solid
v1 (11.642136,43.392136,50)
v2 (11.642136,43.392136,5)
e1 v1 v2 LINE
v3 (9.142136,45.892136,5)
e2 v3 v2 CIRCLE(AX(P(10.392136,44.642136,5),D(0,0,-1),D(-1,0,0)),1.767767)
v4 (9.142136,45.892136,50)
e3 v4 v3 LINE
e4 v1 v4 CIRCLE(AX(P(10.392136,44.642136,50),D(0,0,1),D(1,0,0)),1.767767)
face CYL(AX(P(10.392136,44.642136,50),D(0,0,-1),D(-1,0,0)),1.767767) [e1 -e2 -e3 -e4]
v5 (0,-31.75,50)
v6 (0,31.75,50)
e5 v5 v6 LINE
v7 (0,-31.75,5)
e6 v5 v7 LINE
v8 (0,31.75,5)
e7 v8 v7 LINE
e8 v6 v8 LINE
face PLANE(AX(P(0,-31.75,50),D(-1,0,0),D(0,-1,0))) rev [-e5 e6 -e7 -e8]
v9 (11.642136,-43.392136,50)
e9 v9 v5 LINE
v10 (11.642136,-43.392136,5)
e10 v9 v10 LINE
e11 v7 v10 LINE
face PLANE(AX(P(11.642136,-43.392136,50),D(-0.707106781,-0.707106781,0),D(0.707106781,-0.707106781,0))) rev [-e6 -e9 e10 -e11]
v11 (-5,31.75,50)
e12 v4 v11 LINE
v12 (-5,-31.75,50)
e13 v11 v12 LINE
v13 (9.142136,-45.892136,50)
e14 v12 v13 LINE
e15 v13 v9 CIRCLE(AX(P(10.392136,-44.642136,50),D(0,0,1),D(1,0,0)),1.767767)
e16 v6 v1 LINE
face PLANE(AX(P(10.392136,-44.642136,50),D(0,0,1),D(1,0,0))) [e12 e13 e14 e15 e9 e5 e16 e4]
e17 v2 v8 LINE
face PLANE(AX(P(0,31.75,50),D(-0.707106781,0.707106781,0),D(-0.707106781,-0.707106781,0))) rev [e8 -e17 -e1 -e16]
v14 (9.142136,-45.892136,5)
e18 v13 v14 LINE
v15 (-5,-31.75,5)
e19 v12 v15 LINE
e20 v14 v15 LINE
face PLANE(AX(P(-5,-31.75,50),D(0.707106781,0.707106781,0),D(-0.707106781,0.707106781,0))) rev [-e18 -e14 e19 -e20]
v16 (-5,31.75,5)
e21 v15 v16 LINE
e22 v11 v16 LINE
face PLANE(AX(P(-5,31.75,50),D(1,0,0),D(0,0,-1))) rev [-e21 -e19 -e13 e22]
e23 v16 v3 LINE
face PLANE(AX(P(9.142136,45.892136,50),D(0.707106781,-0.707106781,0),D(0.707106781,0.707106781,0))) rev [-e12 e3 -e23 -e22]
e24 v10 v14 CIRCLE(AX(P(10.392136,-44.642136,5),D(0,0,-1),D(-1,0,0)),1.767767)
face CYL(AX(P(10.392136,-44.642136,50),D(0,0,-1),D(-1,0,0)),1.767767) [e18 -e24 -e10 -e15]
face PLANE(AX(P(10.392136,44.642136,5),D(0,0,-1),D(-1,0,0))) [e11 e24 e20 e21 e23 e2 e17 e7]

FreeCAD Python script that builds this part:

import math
import FreeCAD as App
import Part
import Sketcher

V = App.Vector
Q = App.Units.Quantity

doc = App.newDocument("Part")
body = doc.addObject("PartDesign::Body", "Body")

# Sketch on XY plane
sketch1 = body.newObject("Sketcher::SketchObject", "Sketch")
sketch1.AttachmentSupport = (doc.getObject("XY_Plane"), [""])
sketch1.MapMode = "FlatFace"
sketch1.addGeometry([
    Part.LineSegment(V(-5, 31.8, 0), V(-5, -31.8, 0)),  # 0
    Part.LineSegment(V(-5, -31.8, 0), V(9.1, -45.9, 0)),  # 1
    Part.ArcOfCircle(Part.Circle(V(10.4, -44.6, 0), V(0, 0, 1), 1.8), math.radians(-135), math.radians(45)),  # 2
    Part.LineSegment(V(11.6, -43.4, 0), V(0, -31.8, 0)),  # 3
    Part.LineSegment(V(0, -31.8, 0), V(0, 31.8, 0)),  # 4
    Part.LineSegment(V(0, 31.8, 0), V(11.6, 43.4, 0)),  # 5
    Part.ArcOfCircle(Part.Circle(V(10.4, 44.6, 0), V(0, 0, 1), 1.8), math.radians(-45), math.radians(135)),  # 6
    Part.LineSegment(V(9.1, 45.9, 0), V(-5, 31.8, 0)),  # 7
], False)
sketch1.addConstraint([
    Sketcher.Constraint("Coincident", 0, 2, 1, 1),
    Sketcher.Constraint("Tangent", 1, 2, 2, 1),
    Sketcher.Constraint("Tangent", 2, 2, 3, 1),
    Sketcher.Constraint("Coincident", 3, 2, 4, 1),
    Sketcher.Constraint("Coincident", 4, 2, 5, 1),
    Sketcher.Constraint("Tangent", 5, 2, 6, 1),
    Sketcher.Constraint("Tangent", 6, 2, 7, 1),
    Sketcher.Constraint("Coincident", 7, 2, 0, 1),
    Sketcher.Constraint("Vertical", 0),
    Sketcher.Constraint("Vertical", 4),
    Sketcher.Constraint("Equal", 2, 6),
    Sketcher.Constraint("Symmetric", 3, 2, 4, 2, -1, 1),
    Sketcher.Constraint("Symmetric", 2, 3, 6, 3, -1),
    Sketcher.Constraint("Parallel", 1, 3),
    Sketcher.Constraint("Perpendicular", 3, 5),
    Sketcher.Constraint("Parallel", 5, 7),
    Sketcher.Constraint("Horizontal", 0, 2, 3, 2),
    Sketcher.Constraint("Distance", 1, Q("20 mm")),
    Sketcher.Constraint("DistanceY", 0, 2, 0, 1, Q("63.5 mm")),
    Sketcher.Constraint("DistanceX", 0, 2, -1, 1, Q("5 mm")),
])
pad1 = body.newObject("PartDesign::Pad", "Pad")
pad1.Profile = sketch1
pad1.Length = 50

# Sketch on XY plane
sketch2 = body.newObject("Sketcher::SketchObject", "Sketch001")
sketch2.AttachmentSupport = (doc.getObject("XY_Plane"), [""])
sketch2.MapMode = "FlatFace"
sketch2.addGeometry([
    Part.LineSegment(V(-5, 31.8, 0), V(9.1, 45.9, 0)),  # 0
    Part.ArcOfCircle(Part.Circle(V(10.4, 44.6, 0), V(0, 0, 1), 1.8), math.radians(-45), math.radians(135)),  # 1
    Part.LineSegment(V(11.6, 43.4, 0), V(0, 31.8, 0)),  # 2
    Part.LineSegment(V(0, 31.8, 0), V(0, -31.8, 0)),  # 3
    Part.LineSegment(V(0, -31.8, 0), V(11.6, -43.4, 0)),  # 4
    Part.ArcOfCircle(Part.Circle(V(10.4, -44.6, 0), V(0, 0, 1), 1.8), math.radians(-135), math.radians(45)),  # 5
    Part.LineSegment(V(9.1, -45.9, 0), V(-5, -31.8, 0)),  # 6
    Part.LineSegment(V(-5, -31.8, 0), V(-5, 31.8, 0)),  # 7
], False)
sketch2.addConstraint([
    Sketcher.Constraint("Tangent", 0, 2, 1, 2),
    Sketcher.Constraint("Tangent", 1, 1, 2, 1),
    Sketcher.Constraint("Coincident", 2, 2, 3, 1),
    Sketcher.Constraint("Coincident", 3, 2, 4, 1),
    Sketcher.Constraint("Tangent", 4, 2, 5, 2),
    Sketcher.Constraint("Tangent", 5, 1, 6, 1),
    Sketcher.Constraint("Coincident", 6, 2, 7, 1),
    Sketcher.Constraint("Coincident", 7, 2, 0, 1),
    Sketcher.Constraint("Vertical", 3),
    Sketcher.Constraint("Vertical", 7),
    Sketcher.Constraint("Equal", 1, 5),
    Sketcher.Constraint("Symmetric", 2, 2, 3, 2, -1, 1),
    Sketcher.Constraint("Symmetric", 1, 3, 5, 3, -1),
    Sketcher.Constraint("Parallel", 0, 2),
    Sketcher.Constraint("Perpendicular", 2, 4),
    Sketcher.Constraint("Parallel", 4, 6),
    Sketcher.Constraint("Horizontal", 3, 2, 6, 2),
    Sketcher.Constraint("Distance", 0, Q("20 mm")),
    Sketcher.Constraint("DistanceY", 3, 2, 3, 1, Q("63.5 mm")),
    Sketcher.Constraint("DistanceX", 6, 2, -1, 1, Q("5 mm")),
])
pocket1 = body.newObject("PartDesign::Pocket", "Pocket")
pocket1.Profile = sketch2
pocket1.Length = 5
pocket1.Reversed = True

doc.recompute()
